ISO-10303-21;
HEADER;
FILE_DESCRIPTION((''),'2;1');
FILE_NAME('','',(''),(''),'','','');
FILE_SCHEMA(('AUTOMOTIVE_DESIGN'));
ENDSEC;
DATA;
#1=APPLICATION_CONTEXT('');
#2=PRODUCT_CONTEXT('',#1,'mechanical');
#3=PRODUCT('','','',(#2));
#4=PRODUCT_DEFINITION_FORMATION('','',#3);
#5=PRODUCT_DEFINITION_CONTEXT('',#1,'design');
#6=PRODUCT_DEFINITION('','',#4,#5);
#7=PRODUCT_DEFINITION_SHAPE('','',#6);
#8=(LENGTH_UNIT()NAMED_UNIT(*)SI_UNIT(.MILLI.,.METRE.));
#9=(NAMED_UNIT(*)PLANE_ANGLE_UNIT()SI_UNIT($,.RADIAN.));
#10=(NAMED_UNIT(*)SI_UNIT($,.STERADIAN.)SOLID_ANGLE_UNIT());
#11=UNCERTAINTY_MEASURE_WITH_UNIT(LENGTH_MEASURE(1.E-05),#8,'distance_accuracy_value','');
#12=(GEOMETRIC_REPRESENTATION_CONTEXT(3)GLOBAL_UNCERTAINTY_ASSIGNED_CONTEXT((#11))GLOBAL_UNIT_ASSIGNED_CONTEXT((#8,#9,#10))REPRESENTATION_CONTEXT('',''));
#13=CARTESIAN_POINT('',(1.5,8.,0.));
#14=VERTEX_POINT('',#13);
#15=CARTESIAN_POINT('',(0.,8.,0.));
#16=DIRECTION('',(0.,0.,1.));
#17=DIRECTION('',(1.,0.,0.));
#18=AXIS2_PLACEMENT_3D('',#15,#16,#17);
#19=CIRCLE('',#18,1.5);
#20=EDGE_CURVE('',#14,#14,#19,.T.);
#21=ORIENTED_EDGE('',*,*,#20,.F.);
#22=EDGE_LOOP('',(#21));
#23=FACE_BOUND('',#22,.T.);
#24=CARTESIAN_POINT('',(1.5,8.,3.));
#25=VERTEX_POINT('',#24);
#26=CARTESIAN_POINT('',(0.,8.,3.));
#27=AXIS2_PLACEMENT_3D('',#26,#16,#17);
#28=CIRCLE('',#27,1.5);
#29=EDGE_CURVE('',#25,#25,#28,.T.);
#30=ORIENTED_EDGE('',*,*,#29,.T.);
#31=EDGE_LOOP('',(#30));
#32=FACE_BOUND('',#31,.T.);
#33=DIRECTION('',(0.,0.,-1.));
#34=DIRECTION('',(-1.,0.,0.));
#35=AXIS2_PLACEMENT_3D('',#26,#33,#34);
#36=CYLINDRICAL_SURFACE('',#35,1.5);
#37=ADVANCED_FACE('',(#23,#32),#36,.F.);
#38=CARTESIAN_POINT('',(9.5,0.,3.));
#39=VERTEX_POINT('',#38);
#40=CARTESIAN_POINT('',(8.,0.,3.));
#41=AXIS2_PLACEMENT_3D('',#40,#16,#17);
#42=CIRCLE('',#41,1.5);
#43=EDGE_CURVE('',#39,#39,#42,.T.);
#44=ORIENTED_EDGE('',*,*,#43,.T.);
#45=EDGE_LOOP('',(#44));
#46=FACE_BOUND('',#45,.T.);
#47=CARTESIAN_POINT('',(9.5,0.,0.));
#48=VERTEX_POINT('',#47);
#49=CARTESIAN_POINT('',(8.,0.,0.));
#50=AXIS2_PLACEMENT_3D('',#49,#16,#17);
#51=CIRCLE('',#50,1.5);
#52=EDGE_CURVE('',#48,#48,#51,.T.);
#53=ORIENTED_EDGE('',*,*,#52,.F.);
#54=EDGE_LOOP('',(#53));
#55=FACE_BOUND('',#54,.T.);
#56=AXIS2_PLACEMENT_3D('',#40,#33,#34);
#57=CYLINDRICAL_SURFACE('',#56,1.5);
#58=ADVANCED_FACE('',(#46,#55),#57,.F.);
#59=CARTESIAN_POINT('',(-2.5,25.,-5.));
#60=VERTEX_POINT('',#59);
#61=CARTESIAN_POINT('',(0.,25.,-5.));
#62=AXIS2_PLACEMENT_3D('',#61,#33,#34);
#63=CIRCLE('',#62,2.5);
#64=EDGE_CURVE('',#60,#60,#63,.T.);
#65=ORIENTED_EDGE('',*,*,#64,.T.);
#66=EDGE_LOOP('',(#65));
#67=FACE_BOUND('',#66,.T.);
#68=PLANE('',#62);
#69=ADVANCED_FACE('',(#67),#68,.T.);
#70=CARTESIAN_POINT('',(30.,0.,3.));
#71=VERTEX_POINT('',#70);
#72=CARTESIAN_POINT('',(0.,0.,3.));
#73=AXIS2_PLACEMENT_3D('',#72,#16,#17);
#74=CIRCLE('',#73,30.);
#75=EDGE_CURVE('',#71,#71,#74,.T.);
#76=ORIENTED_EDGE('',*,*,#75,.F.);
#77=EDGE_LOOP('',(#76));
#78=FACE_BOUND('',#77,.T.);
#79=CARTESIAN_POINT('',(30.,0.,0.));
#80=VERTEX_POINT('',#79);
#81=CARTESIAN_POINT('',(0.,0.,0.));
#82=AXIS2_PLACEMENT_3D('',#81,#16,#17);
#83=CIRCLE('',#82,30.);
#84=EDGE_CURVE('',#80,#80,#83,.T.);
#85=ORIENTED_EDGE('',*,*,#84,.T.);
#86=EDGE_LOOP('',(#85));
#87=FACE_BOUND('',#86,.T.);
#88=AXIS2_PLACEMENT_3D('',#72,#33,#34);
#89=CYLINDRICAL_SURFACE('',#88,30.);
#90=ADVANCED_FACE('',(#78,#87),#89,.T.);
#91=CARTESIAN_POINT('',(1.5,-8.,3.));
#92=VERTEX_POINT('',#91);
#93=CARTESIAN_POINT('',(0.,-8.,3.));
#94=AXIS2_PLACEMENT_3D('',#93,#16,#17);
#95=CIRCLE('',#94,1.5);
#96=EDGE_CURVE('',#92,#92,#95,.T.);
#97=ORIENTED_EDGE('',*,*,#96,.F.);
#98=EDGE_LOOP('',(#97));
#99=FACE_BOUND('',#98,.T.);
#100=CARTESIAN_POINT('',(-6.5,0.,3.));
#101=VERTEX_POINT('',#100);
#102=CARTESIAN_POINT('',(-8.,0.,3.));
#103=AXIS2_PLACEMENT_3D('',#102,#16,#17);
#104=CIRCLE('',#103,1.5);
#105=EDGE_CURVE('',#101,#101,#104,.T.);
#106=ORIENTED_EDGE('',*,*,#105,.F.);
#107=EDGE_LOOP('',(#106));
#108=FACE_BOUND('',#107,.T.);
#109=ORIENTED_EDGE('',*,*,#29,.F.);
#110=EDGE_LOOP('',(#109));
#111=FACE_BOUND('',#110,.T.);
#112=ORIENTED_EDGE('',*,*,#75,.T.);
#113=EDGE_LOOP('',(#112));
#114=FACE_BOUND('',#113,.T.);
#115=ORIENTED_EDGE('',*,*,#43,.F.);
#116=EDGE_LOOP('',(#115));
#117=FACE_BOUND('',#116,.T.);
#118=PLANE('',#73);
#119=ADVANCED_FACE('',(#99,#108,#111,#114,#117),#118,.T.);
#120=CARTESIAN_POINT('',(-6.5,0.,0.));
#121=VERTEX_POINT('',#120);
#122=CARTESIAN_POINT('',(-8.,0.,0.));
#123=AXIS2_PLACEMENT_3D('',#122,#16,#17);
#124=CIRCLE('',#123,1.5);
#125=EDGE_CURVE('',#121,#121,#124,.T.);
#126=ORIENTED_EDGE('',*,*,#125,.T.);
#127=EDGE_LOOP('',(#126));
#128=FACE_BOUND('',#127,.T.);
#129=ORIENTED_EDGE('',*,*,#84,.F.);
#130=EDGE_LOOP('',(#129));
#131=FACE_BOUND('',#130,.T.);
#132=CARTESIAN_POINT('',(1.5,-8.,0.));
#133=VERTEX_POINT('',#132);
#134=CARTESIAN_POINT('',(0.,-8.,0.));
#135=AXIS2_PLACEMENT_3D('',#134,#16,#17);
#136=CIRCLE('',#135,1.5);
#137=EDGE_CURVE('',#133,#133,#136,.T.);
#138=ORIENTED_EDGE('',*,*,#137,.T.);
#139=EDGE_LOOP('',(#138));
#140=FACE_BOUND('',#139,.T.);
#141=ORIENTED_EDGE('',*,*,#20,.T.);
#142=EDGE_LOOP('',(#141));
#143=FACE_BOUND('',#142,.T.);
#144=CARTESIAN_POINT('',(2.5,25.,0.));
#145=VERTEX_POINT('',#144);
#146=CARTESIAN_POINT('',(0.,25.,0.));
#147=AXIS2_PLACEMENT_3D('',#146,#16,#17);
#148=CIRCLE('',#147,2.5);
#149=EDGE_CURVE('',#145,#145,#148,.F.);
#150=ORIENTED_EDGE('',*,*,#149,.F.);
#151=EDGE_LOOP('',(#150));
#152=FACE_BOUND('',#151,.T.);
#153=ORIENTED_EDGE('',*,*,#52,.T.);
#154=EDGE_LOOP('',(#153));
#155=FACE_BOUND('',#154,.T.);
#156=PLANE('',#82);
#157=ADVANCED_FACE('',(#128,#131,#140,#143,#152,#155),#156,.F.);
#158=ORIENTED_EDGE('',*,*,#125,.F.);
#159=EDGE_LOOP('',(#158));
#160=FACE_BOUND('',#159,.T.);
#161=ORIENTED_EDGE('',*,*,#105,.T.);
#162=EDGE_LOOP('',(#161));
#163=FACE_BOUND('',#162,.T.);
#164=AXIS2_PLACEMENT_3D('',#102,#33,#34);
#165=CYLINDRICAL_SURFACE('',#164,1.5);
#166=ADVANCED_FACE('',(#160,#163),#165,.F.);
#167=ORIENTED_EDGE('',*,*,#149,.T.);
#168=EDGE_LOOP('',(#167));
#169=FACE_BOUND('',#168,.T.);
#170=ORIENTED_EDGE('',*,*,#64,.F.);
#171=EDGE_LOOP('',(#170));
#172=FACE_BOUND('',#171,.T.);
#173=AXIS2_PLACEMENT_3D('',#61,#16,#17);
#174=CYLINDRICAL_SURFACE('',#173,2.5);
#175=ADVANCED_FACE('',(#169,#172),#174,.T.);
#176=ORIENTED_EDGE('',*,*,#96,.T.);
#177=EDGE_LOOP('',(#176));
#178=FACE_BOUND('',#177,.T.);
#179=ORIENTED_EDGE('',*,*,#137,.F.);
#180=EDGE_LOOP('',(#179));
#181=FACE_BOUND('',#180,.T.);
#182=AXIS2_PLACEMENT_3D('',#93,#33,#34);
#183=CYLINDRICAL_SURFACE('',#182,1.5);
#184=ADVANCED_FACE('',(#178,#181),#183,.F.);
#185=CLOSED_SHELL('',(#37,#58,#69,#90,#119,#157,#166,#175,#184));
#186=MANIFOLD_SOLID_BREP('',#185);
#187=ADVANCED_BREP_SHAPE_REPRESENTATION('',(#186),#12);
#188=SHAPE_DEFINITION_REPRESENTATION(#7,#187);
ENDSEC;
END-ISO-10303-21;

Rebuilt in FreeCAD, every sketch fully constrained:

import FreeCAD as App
import Part
import Sketcher

doc = App.newDocument("Part")
params = doc.addObject("Spreadsheet::Sheet", "Params")
for row, (alias, value) in enumerate([
    ("sketch1_diameter", "60 mm"),
    ("sketch1_diameter2", "3 mm"),
    ("pad1_length", "3 mm"),
    ("sketch2_diameter", "5 mm"),
    ("pad2_length", "5 mm"),
], start=1):
    params.set(f"A{row}", alias)
    params.set(f"B{row}", "=" + value)
    params.setAlias(f"B{row}", alias)

body = doc.addObject("PartDesign::Body", "Body")

# Sketch on XY plane
sketch1 = body.newObject("Sketcher::SketchObject", "Sketch")
sketch1.AttachmentSupport = (doc.getObject("XY_Plane"), [""])
sketch1.MapMode = "FlatFace"
sketch1.addGeometry([
    Part.Circle(App.Vector(0, 0, 0), App.Vector(0, 0, 1), 30),  # 0
    Part.Circle(App.Vector(0, -8, 0), App.Vector(0, 0, 1), 1.5),  # 1
    Part.Circle(App.Vector(-8, 0, 0), App.Vector(0, 0, 1), 1.5),  # 2
    Part.Circle(App.Vector(8, 0, 0), App.Vector(0, 0, 1), 1.5),  # 3
    Part.Circle(App.Vector(0, 8, 0), App.Vector(0, 0, 1), 1.5),  # 4
], False)
sketch1.addConstraint([
    Sketcher.Constraint("Coincident", 0, 3, -1, 1),
    Sketcher.Constraint("Equal", 1, 2),
    Sketcher.Constraint("Equal", 2, 3),
    Sketcher.Constraint("Equal", 3, 4),
    Sketcher.Constraint("Symmetric", 2, 3, 3, 3, -1, 1),
    Sketcher.Constraint("Symmetric", 1, 3, 4, 3, -1, 1),
    Sketcher.Constraint("PointOnObject", 1, 3, -2),
    Sketcher.Constraint("PointOnObject", 2, 3, -1),
    Sketcher.Constraint("Diameter", 0, 60.0),
    Sketcher.Constraint("Diameter", 1, 3.0),
    Sketcher.Constraint("DistanceY", 1, 3, -1, 1, 8.0),
    Sketcher.Constraint("DistanceX", 2, 3, -1, 1, 8.0),
])
sketch1.setExpression("Constraints[8]", "Params.sketch1_diameter")
sketch1.setExpression("Constraints[9]", "Params.sketch1_diameter2")
pad1 = body.newObject("PartDesign::Pad", "Pad")
pad1.Profile = sketch1
pad1.setExpression("Length", "Params.pad1_length")

# Sketch on XY plane
sketch2 = body.newObject("Sketcher::SketchObject", "Sketch001")
sketch2.AttachmentSupport = (doc.getObject("XY_Plane"), [""])
sketch2.MapMode = "FlatFace"
sketch2.addGeometry(Part.Circle(App.Vector(0, 25, 0), App.Vector(0, 0, 1), 2.5), False)
sketch2.addConstraint([
    Sketcher.Constraint("PointOnObject", 0, 3, -2),
    Sketcher.Constraint("Diameter", 0, 5.0),
    Sketcher.Constraint("DistanceY", -1, 1, 0, 3, 25.0),
])
sketch2.setExpression("Constraints[1]", "Params.sketch2_diameter")
pad2 = body.newObject("PartDesign::Pad", "Pad001")
pad2.Profile = sketch2
pad2.setExpression("Length", "Params.pad2_length")
pad2.Reversed = True

doc.recompute()
